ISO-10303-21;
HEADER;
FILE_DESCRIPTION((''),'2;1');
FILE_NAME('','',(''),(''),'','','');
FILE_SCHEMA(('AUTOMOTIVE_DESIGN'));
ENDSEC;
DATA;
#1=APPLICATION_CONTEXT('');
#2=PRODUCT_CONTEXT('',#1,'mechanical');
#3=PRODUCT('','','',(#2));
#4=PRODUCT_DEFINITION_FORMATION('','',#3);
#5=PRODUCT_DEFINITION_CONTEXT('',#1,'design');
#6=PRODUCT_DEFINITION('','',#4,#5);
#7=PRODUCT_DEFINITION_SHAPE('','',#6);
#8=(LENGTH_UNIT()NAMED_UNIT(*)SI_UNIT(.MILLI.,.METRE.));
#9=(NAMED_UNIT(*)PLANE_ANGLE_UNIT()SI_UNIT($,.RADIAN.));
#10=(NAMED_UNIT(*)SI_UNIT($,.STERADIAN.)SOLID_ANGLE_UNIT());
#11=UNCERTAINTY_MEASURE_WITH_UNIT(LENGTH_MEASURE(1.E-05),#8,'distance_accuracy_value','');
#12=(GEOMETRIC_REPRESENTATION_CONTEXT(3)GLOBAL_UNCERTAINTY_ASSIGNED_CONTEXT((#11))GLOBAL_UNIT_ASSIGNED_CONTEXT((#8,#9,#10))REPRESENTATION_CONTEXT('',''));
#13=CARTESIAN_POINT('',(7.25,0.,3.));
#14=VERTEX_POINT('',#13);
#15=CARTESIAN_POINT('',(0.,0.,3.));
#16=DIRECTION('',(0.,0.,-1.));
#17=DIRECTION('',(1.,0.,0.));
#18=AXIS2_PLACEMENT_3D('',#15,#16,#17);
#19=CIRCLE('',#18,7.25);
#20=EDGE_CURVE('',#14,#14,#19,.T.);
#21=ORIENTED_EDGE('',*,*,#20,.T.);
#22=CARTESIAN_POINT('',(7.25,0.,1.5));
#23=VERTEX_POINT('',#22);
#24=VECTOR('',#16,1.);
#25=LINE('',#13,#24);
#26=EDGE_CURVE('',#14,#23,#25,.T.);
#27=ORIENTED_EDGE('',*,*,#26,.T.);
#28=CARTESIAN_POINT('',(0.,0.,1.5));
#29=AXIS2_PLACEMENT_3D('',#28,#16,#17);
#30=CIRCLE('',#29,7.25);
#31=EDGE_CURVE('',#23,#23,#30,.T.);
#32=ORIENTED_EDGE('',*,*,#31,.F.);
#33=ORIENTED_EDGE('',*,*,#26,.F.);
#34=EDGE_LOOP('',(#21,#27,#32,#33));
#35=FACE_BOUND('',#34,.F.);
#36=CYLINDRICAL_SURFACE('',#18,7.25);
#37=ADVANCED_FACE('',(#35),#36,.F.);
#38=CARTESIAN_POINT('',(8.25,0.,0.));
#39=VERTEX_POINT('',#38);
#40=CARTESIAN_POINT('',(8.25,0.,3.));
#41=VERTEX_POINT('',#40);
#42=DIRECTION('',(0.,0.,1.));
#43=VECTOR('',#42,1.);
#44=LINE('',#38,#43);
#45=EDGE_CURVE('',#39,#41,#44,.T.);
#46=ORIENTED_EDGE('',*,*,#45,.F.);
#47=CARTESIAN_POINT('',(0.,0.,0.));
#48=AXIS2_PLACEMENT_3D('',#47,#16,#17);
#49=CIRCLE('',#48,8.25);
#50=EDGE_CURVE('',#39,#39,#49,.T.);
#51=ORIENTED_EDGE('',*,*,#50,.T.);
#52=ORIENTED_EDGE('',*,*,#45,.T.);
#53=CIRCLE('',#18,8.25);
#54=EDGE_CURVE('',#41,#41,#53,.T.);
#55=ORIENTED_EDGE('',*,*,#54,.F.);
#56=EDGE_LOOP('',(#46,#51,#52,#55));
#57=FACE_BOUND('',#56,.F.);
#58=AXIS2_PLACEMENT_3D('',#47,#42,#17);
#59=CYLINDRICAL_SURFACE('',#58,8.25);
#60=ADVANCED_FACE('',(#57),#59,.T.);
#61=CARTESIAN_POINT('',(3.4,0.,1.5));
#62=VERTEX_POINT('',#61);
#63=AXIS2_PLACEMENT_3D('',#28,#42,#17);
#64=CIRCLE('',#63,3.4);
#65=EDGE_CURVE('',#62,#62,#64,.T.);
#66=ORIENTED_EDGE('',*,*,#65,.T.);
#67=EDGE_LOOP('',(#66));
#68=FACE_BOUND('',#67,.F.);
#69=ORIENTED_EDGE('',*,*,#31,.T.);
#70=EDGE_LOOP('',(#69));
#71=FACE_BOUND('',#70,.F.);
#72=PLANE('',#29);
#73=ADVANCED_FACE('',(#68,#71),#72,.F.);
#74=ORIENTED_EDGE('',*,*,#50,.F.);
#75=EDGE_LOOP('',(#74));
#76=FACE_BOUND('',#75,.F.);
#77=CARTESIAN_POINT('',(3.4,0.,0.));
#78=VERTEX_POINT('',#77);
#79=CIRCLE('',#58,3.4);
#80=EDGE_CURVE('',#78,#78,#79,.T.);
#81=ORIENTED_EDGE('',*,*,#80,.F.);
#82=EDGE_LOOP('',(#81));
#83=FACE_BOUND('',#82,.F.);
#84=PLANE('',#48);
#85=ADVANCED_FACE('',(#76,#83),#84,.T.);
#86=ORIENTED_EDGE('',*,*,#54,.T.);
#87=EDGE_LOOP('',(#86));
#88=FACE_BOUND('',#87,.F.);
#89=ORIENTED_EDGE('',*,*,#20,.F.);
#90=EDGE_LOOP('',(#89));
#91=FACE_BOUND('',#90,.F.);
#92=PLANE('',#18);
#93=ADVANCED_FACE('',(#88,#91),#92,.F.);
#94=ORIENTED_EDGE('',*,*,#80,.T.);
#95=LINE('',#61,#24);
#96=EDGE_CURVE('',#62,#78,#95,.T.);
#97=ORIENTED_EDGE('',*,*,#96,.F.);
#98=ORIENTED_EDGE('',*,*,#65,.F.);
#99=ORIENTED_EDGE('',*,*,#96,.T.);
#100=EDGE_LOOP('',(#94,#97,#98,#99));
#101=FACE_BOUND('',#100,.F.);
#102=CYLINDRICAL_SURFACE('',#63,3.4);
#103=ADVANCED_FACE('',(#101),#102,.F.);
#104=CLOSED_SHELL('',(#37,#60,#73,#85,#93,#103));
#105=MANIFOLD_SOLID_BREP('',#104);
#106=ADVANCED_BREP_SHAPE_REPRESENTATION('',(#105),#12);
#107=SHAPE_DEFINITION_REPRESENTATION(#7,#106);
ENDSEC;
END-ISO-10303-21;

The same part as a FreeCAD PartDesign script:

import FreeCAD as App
import Part
import Sketcher

V = App.Vector
Q = App.Units.Quantity


def add_polygon(sketch, points):
    """Adds a closed chain of lines whose ends are joined by coincident constraints."""
    first, n = sketch.GeometryCount, len(points)
    for a, b in zip(points, points[1:] + points[:1]):
        sketch.addGeometry(Part.LineSegment(App.Vector(*a, 0), App.Vector(*b, 0)), False)
    for i in range(n):
        sketch.addConstraint(Sketcher.Constraint("Coincident", first + i, 2, first + (i + 1) % n, 1))

doc = App.newDocument("Part")
body = doc.addObject("PartDesign::Body", "Body")

# Sketch on XZ plane
sketch1 = body.newObject("Sketcher::SketchObject", "Sketch")
sketch1.AttachmentSupport = (doc.getObject("XZ_Plane"), [""])
sketch1.MapMode = "FlatFace"
add_polygon(sketch1, [(0, 1.5), (0, 0), (8.2, 0), (8.2, 3), (7.2, 3), (7.2, 1.5)])  # lines 0-5
sketch1.addConstraint([
    Sketcher.Constraint("Vertical", 0),
    Sketcher.Constraint("Horizontal", 1),
    Sketcher.Constraint("Vertical", 2),
    Sketcher.Constraint("Horizontal", 3),
    Sketcher.Constraint("Vertical", 4),
    Sketcher.Constraint("Horizontal", 5),
    Sketcher.Constraint("Coincident", 0, 2, -1, 1),
    Sketcher.Constraint("Equal", 0, 4),
    Sketcher.Constraint("DistanceX", 3, 2, 3, 1, Q("1 mm")),
    Sketcher.Constraint("DistanceY", 2, 1, 2, 2, Q("3 mm")),
    Sketcher.Constraint("DistanceX", 1, 1, 1, 2, Q("8.25 mm")),
])
revolution = body.newObject("PartDesign::Revolution", "Revolution")
revolution.Profile = sketch1
revolution.ReferenceAxis = (sketch1, ["V_Axis"])
revolution.Angle = 360

# Sketch on XY plane
sketch2 = body.newObject("Sketcher::SketchObject", "Sketch001")
sketch2.AttachmentSupport = (doc.getObject("XY_Plane"), [""])
sketch2.MapMode = "FlatFace"
sketch2.AttachmentOffset = App.Placement(V(0, 0, 1.5), App.Rotation())
sketch2.addGeometry(Part.Circle(V(0, 0, 0), V(0, 0, 1), 3.4), False)
sketch2.addConstraint([
    Sketcher.Constraint("Coincident", 0, 3, -1, 1),
    Sketcher.Constraint("Diameter", 0, Q("6.8 mm")),
])
pocket1 = body.newObject("PartDesign::Pocket", "Pocket")
pocket1.Profile = sketch2
pocket1.Type = "ThroughAll"

doc.recompute()
